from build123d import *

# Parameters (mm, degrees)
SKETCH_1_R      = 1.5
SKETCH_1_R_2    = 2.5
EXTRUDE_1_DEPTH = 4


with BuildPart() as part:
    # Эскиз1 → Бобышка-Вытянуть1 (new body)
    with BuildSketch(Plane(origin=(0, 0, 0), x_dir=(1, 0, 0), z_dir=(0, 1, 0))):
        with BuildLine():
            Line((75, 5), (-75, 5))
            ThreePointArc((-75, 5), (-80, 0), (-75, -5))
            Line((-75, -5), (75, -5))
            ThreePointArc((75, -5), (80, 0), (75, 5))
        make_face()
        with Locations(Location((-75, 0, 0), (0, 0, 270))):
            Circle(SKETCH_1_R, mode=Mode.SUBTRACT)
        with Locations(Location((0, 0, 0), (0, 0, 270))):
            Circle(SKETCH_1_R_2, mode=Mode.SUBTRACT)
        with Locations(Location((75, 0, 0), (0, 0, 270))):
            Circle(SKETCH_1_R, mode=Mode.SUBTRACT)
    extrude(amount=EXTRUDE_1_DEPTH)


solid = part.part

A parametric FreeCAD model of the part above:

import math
import FreeCAD as App
import Part
import Sketcher

V = App.Vector

doc = App.newDocument("Part")
body = doc.addObject("PartDesign::Body", "Body")

# Sketch on XZ plane
sketch1 = body.newObject("Sketcher::SketchObject", "Sketch")
sketch1.AttachmentSupport = (doc.getObject("XZ_Plane"), [""])
sketch1.MapMode = "FlatFace"
sketch1.addGeometry([
    Part.LineSegment(V(75, -5, 0), V(-75, -5, 0)),  # 0
    Part.ArcOfCircle(Part.Circle(V(-75, 0, 0), V(0, 0, 1), 5), math.radians(90), math.radians(270)),  # 1
    Part.LineSegment(V(-75, 5, 0), V(75, 5, 0)),  # 2
    Part.ArcOfCircle(Part.Circle(V(75, 0, 0), V(0, 0, 1), 5), math.radians(-90), math.radians(90)),  # 3
    Part.Circle(V(-75, 0, 0), V(0, 0, 1), 1.5),  # 4
    Part.Circle(V(0, 0, 0), V(0, 0, 1), 2.5),  # 5
    Part.Circle(V(75, 0, 0), V(0, 0, 1), 1.5),  # 6
], False)
sketch1.addConstraint([
    Sketcher.Constraint("Tangent", 0, 2, 1, 2),
    Sketcher.Constraint("Tangent", 1, 1, 2, 1),
    Sketcher.Constraint("Tangent", 2, 2, 3, 2),
    Sketcher.Constraint("Tangent", 3, 1, 0, 1),
    Sketcher.Constraint("Horizontal", 0),
    Sketcher.Constraint("Horizontal", 2),
    Sketcher.Constraint("Coincident", 5, 3, -1, 1),
    Sketcher.Constraint("Coincident", 4, 3, 1, 3),
    Sketcher.Constraint("Coincident", 6, 3, 3, 3),
    Sketcher.Constraint("Equal", 4, 6),
    Sketcher.Constraint("Symmetric", 1, 3, 3, 3, -1, 1),
    Sketcher.Constraint("Diameter", 4, 3.0),
    Sketcher.Constraint("Diameter", 5, 5.0),
    Sketcher.Constraint("Radius", 1, 5.0),
    Sketcher.Constraint("DistanceX", 0, 2, 0, 1, 150.0),
])
pad1 = body.newObject("PartDesign::Pad", "Pad")
pad1.Profile = sketch1
pad1.Length = 4
pad1.Reversed = True

doc.recompute()
